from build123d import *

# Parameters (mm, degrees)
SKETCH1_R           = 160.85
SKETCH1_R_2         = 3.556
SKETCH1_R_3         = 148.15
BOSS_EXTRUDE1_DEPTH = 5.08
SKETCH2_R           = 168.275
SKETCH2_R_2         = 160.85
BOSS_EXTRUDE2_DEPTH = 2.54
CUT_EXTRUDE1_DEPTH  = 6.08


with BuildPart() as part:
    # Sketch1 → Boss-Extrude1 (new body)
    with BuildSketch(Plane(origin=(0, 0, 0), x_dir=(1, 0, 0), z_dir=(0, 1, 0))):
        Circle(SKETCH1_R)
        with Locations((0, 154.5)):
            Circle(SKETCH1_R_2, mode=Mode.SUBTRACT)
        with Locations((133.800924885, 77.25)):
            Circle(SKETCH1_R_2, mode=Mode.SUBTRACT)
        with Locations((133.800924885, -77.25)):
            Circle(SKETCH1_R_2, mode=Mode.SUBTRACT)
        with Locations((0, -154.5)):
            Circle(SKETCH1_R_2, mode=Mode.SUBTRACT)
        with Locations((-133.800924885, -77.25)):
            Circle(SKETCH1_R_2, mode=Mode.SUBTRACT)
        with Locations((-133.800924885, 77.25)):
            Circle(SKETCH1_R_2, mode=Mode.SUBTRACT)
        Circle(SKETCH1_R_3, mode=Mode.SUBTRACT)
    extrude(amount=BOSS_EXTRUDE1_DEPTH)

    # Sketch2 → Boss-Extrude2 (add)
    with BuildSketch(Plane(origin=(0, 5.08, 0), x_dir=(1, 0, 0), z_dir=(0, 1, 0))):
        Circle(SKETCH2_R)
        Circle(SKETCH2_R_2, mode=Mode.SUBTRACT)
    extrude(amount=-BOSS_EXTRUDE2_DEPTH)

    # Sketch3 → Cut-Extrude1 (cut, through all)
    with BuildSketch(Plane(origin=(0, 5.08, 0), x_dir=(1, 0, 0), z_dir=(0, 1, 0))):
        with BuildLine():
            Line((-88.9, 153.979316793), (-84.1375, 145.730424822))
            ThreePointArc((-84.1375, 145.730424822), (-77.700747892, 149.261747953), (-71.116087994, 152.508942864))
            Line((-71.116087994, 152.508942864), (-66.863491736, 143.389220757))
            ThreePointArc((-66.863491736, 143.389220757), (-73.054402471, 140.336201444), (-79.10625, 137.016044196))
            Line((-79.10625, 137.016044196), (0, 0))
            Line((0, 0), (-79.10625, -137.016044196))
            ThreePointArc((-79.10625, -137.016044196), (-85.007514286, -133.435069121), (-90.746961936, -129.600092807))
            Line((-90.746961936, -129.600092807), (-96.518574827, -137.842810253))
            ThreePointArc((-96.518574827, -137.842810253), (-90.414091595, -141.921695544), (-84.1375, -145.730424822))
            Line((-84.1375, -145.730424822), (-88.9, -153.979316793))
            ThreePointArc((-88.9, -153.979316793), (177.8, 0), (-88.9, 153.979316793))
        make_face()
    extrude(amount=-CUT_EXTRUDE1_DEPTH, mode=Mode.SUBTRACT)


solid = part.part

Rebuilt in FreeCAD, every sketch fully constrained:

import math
import FreeCAD as App
import Part
import Sketcher
Q = App.Units.Quantity

doc = App.newDocument("Part")
body = doc.addObject("PartDesign::Body", "Body")

# Sketch on XZ plane
sketch1 = doc.addObject("Sketcher::SketchObject", "Sketch")
body.addObject(sketch1)
sketch1.AttachmentSupport = (doc.XZ_Plane, [""])
sketch1.MapMode = "FlatFace"
sketch1.addGeometry(Part.Circle(App.Vector(0, 0, 0), App.Vector(0, 0, 1), 160.8), False)
sketch1.addGeometry(Part.Circle(App.Vector(-133.8, 77.2, 0), App.Vector(0, 0, 1), 3.6), False)
sketch1.addGeometry(Part.Circle(App.Vector(0, 154.5, 0), App.Vector(0, 0, 1), 3.6), False)
sketch1.addGeometry(Part.Circle(App.Vector(133.8, 77.2, 0), App.Vector(0, 0, 1), 3.6), False)
sketch1.addGeometry(Part.Circle(App.Vector(-133.8, -77.2, 0), App.Vector(0, 0, 1), 3.6), False)
sketch1.addGeometry(Part.Circle(App.Vector(0, 0, 0), App.Vector(0, 0, 1), 148.2), False)
sketch1.addGeometry(Part.Circle(App.Vector(133.8, -77.2, 0), App.Vector(0, 0, 1), 3.6), False)
sketch1.addGeometry(Part.Circle(App.Vector(0, -154.5, 0), App.Vector(0, 0, 1), 3.6), False)
sketch1.addConstraint(Sketcher.Constraint("Coincident", 0, 3, -1, 1))
sketch1.addConstraint(Sketcher.Constraint("Coincident", 5, 3, -1, 1))
sketch1.addConstraint(Sketcher.Constraint("Equal", 1, 2))
sketch1.addConstraint(Sketcher.Constraint("Equal", 2, 3))
sketch1.addConstraint(Sketcher.Constraint("Equal", 3, 4))
sketch1.addConstraint(Sketcher.Constraint("Equal", 4, 6))
sketch1.addConstraint(Sketcher.Constraint("Equal", 6, 7))
sketch1.addConstraint(Sketcher.Constraint("Symmetric", 3, 3, 4, 3, -1, 1))
sketch1.addConstraint(Sketcher.Constraint("Symmetric", 1, 3, 6, 3, -1, 1))
sketch1.addConstraint(Sketcher.Constraint("Symmetric", 2, 3, 7, 3, -1, 1))
sketch1.addConstraint(Sketcher.Constraint("Symmetric", 1, 3, 3, 3, -2))
sketch1.addConstraint(Sketcher.Constraint("PointOnObject", 2, 3, -2))
sketch1.addConstraint(Sketcher.Constraint("Diameter", 1, Q("0.28 in")))
sketch1.addConstraint(Sketcher.Constraint("Diameter", 0, 321.7))
sketch1.addConstraint(Sketcher.Constraint("Diameter", 5, 296.3))
sketch1.addConstraint(Sketcher.Constraint("DistanceY", -1, 1, 1, 3, 77.25))
sketch1.addConstraint(Sketcher.Constraint("DistanceY", -1, 1, 2, 3, 154.5))
sketch1.addConstraint(Sketcher.Constraint("DistanceX", 1, 3, 3, 3, 267.60185))
pad1 = doc.addObject("PartDesign::Pad", "Pad")
body.addObject(pad1)
pad1.Profile = sketch1
pad1.Length = Q("0.2 in")
pad1.Reversed = True

# Sketch on XZ plane
sketch2 = doc.addObject("Sketcher::SketchObject", "Sketch001")
body.addObject(sketch2)
sketch2.AttachmentSupport = (doc.XZ_Plane, [""])
sketch2.MapMode = "FlatFace"
sketch2.AttachmentOffset = App.Placement(App.Vector(0, 0, -0.2 * 25.4), App.Rotation())
sketch2.addGeometry(Part.Circle(App.Vector(0, 0, 0), App.Vector(0, 0, 1), 168), False)
sketch2.addGeometry(Part.Circle(App.Vector(0, 0, 0), App.Vector(0, 0, 1), 161), False)
sketch2.addConstraint(Sketcher.Constraint("Coincident", 0, 3, -1, 1))
sketch2.addConstraint(Sketcher.Constraint("Coincident", 1, 3, -1, 1))
sketch2.addConstraint(Sketcher.Constraint("Diameter", 0, Q("13.25 in")))
sketch2.addConstraint(Sketcher.Constraint("Diameter", 1, 321.7))
pad2 = doc.addObject("PartDesign::Pad", "Pad001")
body.addObject(pad2)
pad2.Profile = sketch2
pad2.Length = Q("0.1 in")

# Sketch on XZ plane
sketch3 = doc.addObject("Sketcher::SketchObject", "Sketch002")
body.addObject(sketch3)
sketch3.AttachmentSupport = (doc.XZ_Plane, [""])
sketch3.MapMode = "FlatFace"
sketch3.AttachmentOffset = App.Placement(App.Vector(0, 0, -0.2 * 25.4), App.Rotation())
sketch3.addGeometry(Part.LineSegment(App.Vector(-89, -154, 0), App.Vector(-84, -146, 0)), False)
sketch3.addGeometry(Part.ArcOfCircle(Part.Circle(App.Vector(0, 0, 0), App.Vector(0, 0, 1), 168), math.radians(-120), math.radians(-115)), False)
sketch3.addGeometry(Part.LineSegment(App.Vector(-71, -153, 0), App.Vector(-67, -143, 0)), False)
sketch3.addGeometry(Part.ArcOfCircle(Part.Circle(App.Vector(0, 0, 0), App.Vector(0, 0, 1), 158), math.radians(-120), math.radians(-115)), False)
sketch3.addGeometry(Part.LineSegment(App.Vector(-79, -137, 0), App.Vector(0, 0, 0)), False)
sketch3.addGeometry(Part.LineSegment(App.Vector(0, 0, 0), App.Vector(-79, 137, 0)), False)
sketch3.addGeometry(Part.ArcOfCircle(Part.Circle(App.Vector(0, 0, 0), App.Vector(0, 0, 1), 158), math.radians(120), math.radians(125)), False)
sketch3.addGeometry(Part.LineSegment(App.Vector(-91, 130, 0), App.Vector(-97, 138, 0)), False)
sketch3.addGeometry(Part.ArcOfCircle(Part.Circle(App.Vector(0, 0, 0), App.Vector(0, 0, 1), 168), math.radians(120), math.radians(125)), False)
sketch3.addGeometry(Part.LineSegment(App.Vector(-84, 146, 0), App.Vector(-89, 154, 0)), False)
sketch3.addGeometry(Part.ArcOfCircle(Part.Circle(App.Vector(0, 0, 0), App.Vector(0, 0, 1), 178), math.radians(-120), math.radians(120)), False)
sketch3.addConstraint(Sketcher.Constraint("Coincident", 0, 2, 1, 1))
sketch3.addConstraint(Sketcher.Constraint("Coincident", 1, 2, 2, 1))
sketch3.addConstraint(Sketcher.Constraint("Coincident", 2, 2, 3, 2))
sketch3.addConstraint(Sketcher.Constraint("Coincident", 3, 1, 4, 1))
sketch3.addConstraint(Sketcher.Constraint("Coincident", 4, 2, 5, 1))
sketch3.addConstraint(Sketcher.Constraint("Coincident", 5, 2, 6, 1))
sketch3.addConstraint(Sketcher.Constraint("Coincident", 6, 2, 7, 1))
sketch3.addConstraint(Sketcher.Constraint("Coincident", 7, 2, 8, 2))
sketch3.addConstraint(Sketcher.Constraint("Coincident", 8, 1, 9, 1))
sketch3.addConstraint(Sketcher.Constraint("Coincident", 9, 2, 10, 2))
sketch3.addConstraint(Sketcher.Constraint("Coincident", 10, 1, 0, 1))
sketch3.addConstraint(Sketcher.Constraint("Coincident", 1, 3, -1, 1))
sketch3.addConstraint(Sketcher.Constraint("Coincident", 3, 3, -1, 1))
sketch3.addConstraint(Sketcher.Constraint("Coincident", 6, 3, -1, 1))
sketch3.addConstraint(Sketcher.Constraint("Coincident", 8, 3, -1, 1))
sketch3.addConstraint(Sketcher.Constraint("Coincident", 10, 3, -1, 1))
sketch3.addConstraint(Sketcher.Constraint("Coincident", 4, 2, -1, 1))
sketch3.addConstraint(Sketcher.Constraint("Equal", 3, 6))
sketch3.addConstraint(Sketcher.Constraint("Equal", 1, 8))
sketch3.addConstraint(Sketcher.Constraint("Parallel", 0, 4))
sketch3.addConstraint(Sketcher.Constraint("Parallel", 5, 9))
sketch3.addConstraint(Sketcher.Constraint("Vertical", 3, 1, 5, 2))
sketch3.addConstraint(Sketcher.Constraint("Vertical", 0, 2, 8, 1))
sketch3.addConstraint(Sketcher.Constraint("Radius", 10, Q("7 in")))
sketch3.addConstraint(Sketcher.Constraint("Angle", 0, Q("60 deg")))
sketch3.addConstraint(Sketcher.Constraint("Angle", 2, Q("65 deg")))
sketch3.addConstraint(Sketcher.Constraint("Angle", 7, Q("125 deg")))
sketch3.addConstraint(Sketcher.Constraint("Radius", 1, Q("6.625 in")))
sketch3.addConstraint(Sketcher.Constraint("DistanceX", 9, 2, -1, 1, Q("3.5 in")))
sketch3.addConstraint(Sketcher.Constraint("Radius", 3, 158.212501))
sketch3.addConstraint(Sketcher.Constraint("DistanceY", 1, 2, 3, 1, 15.492899))
sketch3.addConstraint(Sketcher.Constraint("DistanceX", 6, 2, -1, 1, 90.746962))
pocket1 = doc.addObject("PartDesign::Pocket", "Pocket")
body.addObject(pocket1)
pocket1.Profile = sketch3
pocket1.Type = "ThroughAll"
pocket1.Reversed = True

doc.recompute()
